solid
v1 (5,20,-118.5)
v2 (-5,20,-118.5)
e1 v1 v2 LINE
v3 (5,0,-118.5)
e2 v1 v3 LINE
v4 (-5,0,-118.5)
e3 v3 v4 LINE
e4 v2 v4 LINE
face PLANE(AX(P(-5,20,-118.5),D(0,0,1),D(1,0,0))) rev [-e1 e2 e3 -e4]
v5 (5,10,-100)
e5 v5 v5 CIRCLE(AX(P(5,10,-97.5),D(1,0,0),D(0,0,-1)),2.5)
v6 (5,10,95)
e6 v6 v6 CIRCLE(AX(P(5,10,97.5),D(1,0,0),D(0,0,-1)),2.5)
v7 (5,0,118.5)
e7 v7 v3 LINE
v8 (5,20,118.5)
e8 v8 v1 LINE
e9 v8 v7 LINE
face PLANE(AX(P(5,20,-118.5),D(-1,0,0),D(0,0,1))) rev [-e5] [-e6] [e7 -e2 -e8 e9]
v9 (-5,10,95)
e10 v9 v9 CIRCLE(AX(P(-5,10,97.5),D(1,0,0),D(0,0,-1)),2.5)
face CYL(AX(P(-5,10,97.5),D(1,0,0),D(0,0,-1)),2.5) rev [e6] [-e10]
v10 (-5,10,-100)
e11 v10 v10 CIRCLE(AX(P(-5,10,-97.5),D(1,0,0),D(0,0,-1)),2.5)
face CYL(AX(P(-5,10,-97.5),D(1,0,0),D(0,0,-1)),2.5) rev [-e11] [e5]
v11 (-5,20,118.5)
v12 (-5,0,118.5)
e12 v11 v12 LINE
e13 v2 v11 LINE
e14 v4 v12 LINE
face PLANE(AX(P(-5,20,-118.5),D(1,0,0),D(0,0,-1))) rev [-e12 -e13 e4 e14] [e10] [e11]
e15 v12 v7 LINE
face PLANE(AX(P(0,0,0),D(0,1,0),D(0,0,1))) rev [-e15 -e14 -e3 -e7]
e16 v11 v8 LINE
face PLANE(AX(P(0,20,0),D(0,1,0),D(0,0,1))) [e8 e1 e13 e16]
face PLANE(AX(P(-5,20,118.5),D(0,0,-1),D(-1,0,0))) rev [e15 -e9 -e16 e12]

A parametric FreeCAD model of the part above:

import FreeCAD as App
import Part
import Sketcher
from FreeCAD import Vector

doc = App.newDocument("Part")
body = doc.addObject("PartDesign::Body", "Body")

sketch1 = body.newObject("Sketcher::SketchObject", "Sketch")
sketch1.AttachmentSupport = (doc.getObject("XZ_Plane"), [""])
sketch1.MapMode = "FlatFace"
sketch1.addGeometry(Part.LineSegment(Vector(-5, -118, 0), Vector(-5, 118, 0)), False)
sketch1.addGeometry(Part.LineSegment(Vector(-5, 118, 0), Vector(5, 118, 0)), False)
sketch1.addGeometry(Part.LineSegment(Vector(5, 118, 0), Vector(5, -118, 0)), False)
sketch1.addGeometry(Part.LineSegment(Vector(5, -118, 0), Vector(-5, -118, 0)), False)
sketch1.addConstraint(Sketcher.Constraint("Coincident", 0, 2, 1, 1))
sketch1.addConstraint(Sketcher.Constraint("Coincident", 1, 2, 2, 1))
sketch1.addConstraint(Sketcher.Constraint("Coincident", 2, 2, 3, 1))
sketch1.addConstraint(Sketcher.Constraint("Coincident", 3, 2, 0, 1))
sketch1.addConstraint(Sketcher.Constraint("Vertical", 0))
sketch1.addConstraint(Sketcher.Constraint("Horizontal", 1))
sketch1.addConstraint(Sketcher.Constraint("Vertical", 2))
sketch1.addConstraint(Sketcher.Constraint("Horizontal", 3))
sketch1.addConstraint(Sketcher.Constraint("Symmetric", 0, 2, 2, 2, -1, 1))
sketch1.addConstraint(Sketcher.Constraint("DistanceX", 1, 1, 1, 2, 10.0))
sketch1.addConstraint(Sketcher.Constraint("DistanceY", 0, 1, 0, 2, 237.0))
pad1 = body.newObject("PartDesign::Pad", "Pad")
pad1.Profile = sketch1
pad1.Length = 20
pad1.Reversed = True

sketch2 = body.newObject("Sketcher::SketchObject", "Sketch001")
sketch2.AttachmentSupport = (doc.getObject("YZ_Plane"), [""])
sketch2.MapMode = "FlatFace"
sketch2.AttachmentOffset = App.Placement(Vector(0, 0, 5), App.Rotation())
sketch2.addGeometry(Part.Circle(Vector(10, 97.5, 0), Vector(0, 0, 1), 2.5), False)
sketch2.addGeometry(Part.Circle(Vector(10, -97.5, 0), Vector(0, 0, 1), 2.5), False)
sketch2.addConstraint(Sketcher.Constraint("Equal", 0, 1))
sketch2.addConstraint(Sketcher.Constraint("Symmetric", 0, 3, 1, 3, -1))
sketch2.addConstraint(Sketcher.Constraint("Diameter", 0, 5.0))
sketch2.addConstraint(Sketcher.Constraint("DistanceX", -1, 1, 0, 3, 10.0))
sketch2.addConstraint(Sketcher.Constraint("DistanceY", 1, 3, 0, 3, 195.0))
pocket1 = body.newObject("PartDesign::Pocket", "Pocket")
pocket1.Profile = sketch2
pocket1.Length = 10

doc.recompute()
